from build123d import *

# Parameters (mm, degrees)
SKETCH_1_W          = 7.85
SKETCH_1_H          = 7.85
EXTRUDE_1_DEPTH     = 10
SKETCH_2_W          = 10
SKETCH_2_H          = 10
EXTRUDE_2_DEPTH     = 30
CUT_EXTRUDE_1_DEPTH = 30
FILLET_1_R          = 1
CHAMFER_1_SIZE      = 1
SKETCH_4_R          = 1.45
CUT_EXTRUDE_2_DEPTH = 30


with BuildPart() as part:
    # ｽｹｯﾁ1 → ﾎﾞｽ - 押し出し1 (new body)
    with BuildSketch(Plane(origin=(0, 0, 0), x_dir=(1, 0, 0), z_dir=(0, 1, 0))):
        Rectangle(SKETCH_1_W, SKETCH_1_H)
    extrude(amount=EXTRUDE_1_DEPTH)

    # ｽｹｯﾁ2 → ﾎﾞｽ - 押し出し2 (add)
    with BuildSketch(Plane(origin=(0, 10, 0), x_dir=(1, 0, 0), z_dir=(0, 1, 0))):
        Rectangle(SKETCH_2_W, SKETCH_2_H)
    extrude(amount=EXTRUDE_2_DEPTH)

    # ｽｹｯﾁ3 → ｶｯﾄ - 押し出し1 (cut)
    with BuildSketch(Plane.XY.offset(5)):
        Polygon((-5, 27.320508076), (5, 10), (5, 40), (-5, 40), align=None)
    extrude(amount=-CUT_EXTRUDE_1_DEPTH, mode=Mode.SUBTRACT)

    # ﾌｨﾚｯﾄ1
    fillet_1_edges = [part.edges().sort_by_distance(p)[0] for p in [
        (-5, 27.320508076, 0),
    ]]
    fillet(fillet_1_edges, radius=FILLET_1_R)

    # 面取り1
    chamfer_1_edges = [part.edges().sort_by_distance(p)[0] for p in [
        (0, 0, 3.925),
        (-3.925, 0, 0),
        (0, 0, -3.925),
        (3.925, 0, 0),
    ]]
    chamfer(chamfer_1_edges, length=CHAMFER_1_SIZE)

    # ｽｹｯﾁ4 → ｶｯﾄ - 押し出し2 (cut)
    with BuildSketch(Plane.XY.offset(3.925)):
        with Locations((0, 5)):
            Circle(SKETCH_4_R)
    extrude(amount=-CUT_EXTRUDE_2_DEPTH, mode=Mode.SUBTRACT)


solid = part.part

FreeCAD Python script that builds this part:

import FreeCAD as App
import Part
import Sketcher
from FreeCAD import Vector
Q = App.Units.Quantity


def edges_at(feature, points):
    """Names of the edges that pass closest to the given points."""
    edges = feature.Shape.Edges
    near = lambda p: min(range(len(edges)), key=lambda i: edges[i].distToShape(Part.Vertex(*p))[0])
    return sorted({f"Edge{near(p) + 1}" for p in points})


def add_polygon(sketch, points):
    """Adds a closed chain of lines whose ends are joined by coincident constraints."""
    first, n = sketch.GeometryCount, len(points)
    for a, b in zip(points, points[1:] + points[:1]):
        sketch.addGeometry(Part.LineSegment(App.Vector(*a, 0), App.Vector(*b, 0)), False)
    for i in range(n):
        sketch.addConstraint(Sketcher.Constraint("Coincident", first + i, 2, first + (i + 1) % n, 1))

doc = App.newDocument("Part")
body = doc.addObject("PartDesign::Body", "Body")

# Sketch on XZ plane
sketch1 = body.newObject("Sketcher::SketchObject", "Sketch")
sketch1.AttachmentSupport = (doc.getObject("XZ_Plane"), [""])
sketch1.MapMode = "FlatFace"
add_polygon(sketch1, [(-3.925, -3.925), (-3.925, 3.925), (3.925, 3.925), (3.925, -3.925)])  # lines 0-3
sketch1.addConstraint([
    Sketcher.Constraint("Vertical", 0),
    Sketcher.Constraint("Horizontal", 1),
    Sketcher.Constraint("Vertical", 2),
    Sketcher.Constraint("Horizontal", 3),
    Sketcher.Constraint("Symmetric", 0, 2, 2, 2, -1, 1),
    Sketcher.Constraint("Equal", 3, 0),
    Sketcher.Constraint("DistanceX", 1, 1, 1, 2, 7.85),
])
pad1 = body.newObject("PartDesign::Pad", "Pad")
pad1.Profile = sketch1
pad1.Length = 10
pad1.Reversed = True

# Sketch on XZ plane
sketch2 = body.newObject("Sketcher::SketchObject", "Sketch001")
sketch2.AttachmentSupport = (doc.getObject("XZ_Plane"), [""])
sketch2.MapMode = "FlatFace"
sketch2.AttachmentOffset = App.Placement(Vector(0, 0, -10), App.Rotation())
add_polygon(sketch2, [(-5, -5), (-5, 5), (5, 5), (5, -5)])  # lines 0-3
sketch2.addConstraint([
    Sketcher.Constraint("Vertical", 0),
    Sketcher.Constraint("Horizontal", 1),
    Sketcher.Constraint("Vertical", 2),
    Sketcher.Constraint("Horizontal", 3),
    Sketcher.Constraint("Symmetric", 0, 2, 2, 2, -1, 1),
    Sketcher.Constraint("Equal", 3, 0),
    Sketcher.Constraint("DistanceX", 1, 1, 1, 2, 10.0),
])
pad2 = body.newObject("PartDesign::Pad", "Pad001")
pad2.Profile = sketch2
pad2.Length = 30
pad2.Reversed = True

# Sketch on XY plane
sketch3 = body.newObject("Sketcher::SketchObject", "Sketch002")
sketch3.AttachmentSupport = (doc.getObject("XY_Plane"), [""])
sketch3.MapMode = "FlatFace"
sketch3.AttachmentOffset = App.Placement(Vector(0, 0, 5), App.Rotation())
add_polygon(sketch3, [(-5, 27.320508), (5, 10), (5, 40), (-5, 40)])  # lines 0-3
sketch3.addConstraint([
    Sketcher.Constraint("Vertical", 1),
    Sketcher.Constraint("Horizontal", 2),
    Sketcher.Constraint("Vertical", 3),
    Sketcher.Constraint("DistanceX", 2, 2, 2, 1, 10.0),
    Sketcher.Constraint("DistanceY", 1, 1, 1, 2, 30.0),
    Sketcher.Constraint("Angle", 0, Q("-60 deg")),
    Sketcher.Constraint("DistanceX", -1, 1, 0, 2, 5.0),
    Sketcher.Constraint("DistanceY", -1, 1, 0, 2, 10.0),
])
pocket1 = body.newObject("PartDesign::Pocket", "Pocket")
pocket1.Profile = sketch3
pocket1.Length = 30
doc.recompute()

fillet = body.newObject("PartDesign::Fillet", "Fillet")
fillet.Base = (pocket1, edges_at(pocket1, [(-5, 27.321, 0)]))
fillet.Radius = 1
doc.recompute()

chamfer = body.newObject("PartDesign::Chamfer", "Chamfer")
chamfer.Base = (fillet, edges_at(fillet, [
    (0, 0, 3.925),
    (-3.925, 0, 0),
    (0, 0, -3.925),
    (3.925, 0, 0),
]))
chamfer.Size = 1

# Sketch on XY plane
sketch4 = body.newObject("Sketcher::SketchObject", "Sketch003")
sketch4.AttachmentSupport = (doc.getObject("XY_Plane"), [""])
sketch4.MapMode = "FlatFace"
sketch4.AttachmentOffset = App.Placement(Vector(0, 0, 3.925), App.Rotation())
sketch4.addGeometry(Part.Circle(Vector(0, 5, 0), Vector(0, 0, 1), 1.45), False)
sketch4.addConstraint([
    Sketcher.Constraint("PointOnObject", 0, 3, -2),
    Sketcher.Constraint("Diameter", 0, 2.9),
    Sketcher.Constraint("DistanceY", -1, 1, 0, 3, 5.0),
])
pocket2 = body.newObject("PartDesign::Pocket", "Pocket001")
pocket2.Profile = sketch4
pocket2.Length = 30

doc.recompute()
